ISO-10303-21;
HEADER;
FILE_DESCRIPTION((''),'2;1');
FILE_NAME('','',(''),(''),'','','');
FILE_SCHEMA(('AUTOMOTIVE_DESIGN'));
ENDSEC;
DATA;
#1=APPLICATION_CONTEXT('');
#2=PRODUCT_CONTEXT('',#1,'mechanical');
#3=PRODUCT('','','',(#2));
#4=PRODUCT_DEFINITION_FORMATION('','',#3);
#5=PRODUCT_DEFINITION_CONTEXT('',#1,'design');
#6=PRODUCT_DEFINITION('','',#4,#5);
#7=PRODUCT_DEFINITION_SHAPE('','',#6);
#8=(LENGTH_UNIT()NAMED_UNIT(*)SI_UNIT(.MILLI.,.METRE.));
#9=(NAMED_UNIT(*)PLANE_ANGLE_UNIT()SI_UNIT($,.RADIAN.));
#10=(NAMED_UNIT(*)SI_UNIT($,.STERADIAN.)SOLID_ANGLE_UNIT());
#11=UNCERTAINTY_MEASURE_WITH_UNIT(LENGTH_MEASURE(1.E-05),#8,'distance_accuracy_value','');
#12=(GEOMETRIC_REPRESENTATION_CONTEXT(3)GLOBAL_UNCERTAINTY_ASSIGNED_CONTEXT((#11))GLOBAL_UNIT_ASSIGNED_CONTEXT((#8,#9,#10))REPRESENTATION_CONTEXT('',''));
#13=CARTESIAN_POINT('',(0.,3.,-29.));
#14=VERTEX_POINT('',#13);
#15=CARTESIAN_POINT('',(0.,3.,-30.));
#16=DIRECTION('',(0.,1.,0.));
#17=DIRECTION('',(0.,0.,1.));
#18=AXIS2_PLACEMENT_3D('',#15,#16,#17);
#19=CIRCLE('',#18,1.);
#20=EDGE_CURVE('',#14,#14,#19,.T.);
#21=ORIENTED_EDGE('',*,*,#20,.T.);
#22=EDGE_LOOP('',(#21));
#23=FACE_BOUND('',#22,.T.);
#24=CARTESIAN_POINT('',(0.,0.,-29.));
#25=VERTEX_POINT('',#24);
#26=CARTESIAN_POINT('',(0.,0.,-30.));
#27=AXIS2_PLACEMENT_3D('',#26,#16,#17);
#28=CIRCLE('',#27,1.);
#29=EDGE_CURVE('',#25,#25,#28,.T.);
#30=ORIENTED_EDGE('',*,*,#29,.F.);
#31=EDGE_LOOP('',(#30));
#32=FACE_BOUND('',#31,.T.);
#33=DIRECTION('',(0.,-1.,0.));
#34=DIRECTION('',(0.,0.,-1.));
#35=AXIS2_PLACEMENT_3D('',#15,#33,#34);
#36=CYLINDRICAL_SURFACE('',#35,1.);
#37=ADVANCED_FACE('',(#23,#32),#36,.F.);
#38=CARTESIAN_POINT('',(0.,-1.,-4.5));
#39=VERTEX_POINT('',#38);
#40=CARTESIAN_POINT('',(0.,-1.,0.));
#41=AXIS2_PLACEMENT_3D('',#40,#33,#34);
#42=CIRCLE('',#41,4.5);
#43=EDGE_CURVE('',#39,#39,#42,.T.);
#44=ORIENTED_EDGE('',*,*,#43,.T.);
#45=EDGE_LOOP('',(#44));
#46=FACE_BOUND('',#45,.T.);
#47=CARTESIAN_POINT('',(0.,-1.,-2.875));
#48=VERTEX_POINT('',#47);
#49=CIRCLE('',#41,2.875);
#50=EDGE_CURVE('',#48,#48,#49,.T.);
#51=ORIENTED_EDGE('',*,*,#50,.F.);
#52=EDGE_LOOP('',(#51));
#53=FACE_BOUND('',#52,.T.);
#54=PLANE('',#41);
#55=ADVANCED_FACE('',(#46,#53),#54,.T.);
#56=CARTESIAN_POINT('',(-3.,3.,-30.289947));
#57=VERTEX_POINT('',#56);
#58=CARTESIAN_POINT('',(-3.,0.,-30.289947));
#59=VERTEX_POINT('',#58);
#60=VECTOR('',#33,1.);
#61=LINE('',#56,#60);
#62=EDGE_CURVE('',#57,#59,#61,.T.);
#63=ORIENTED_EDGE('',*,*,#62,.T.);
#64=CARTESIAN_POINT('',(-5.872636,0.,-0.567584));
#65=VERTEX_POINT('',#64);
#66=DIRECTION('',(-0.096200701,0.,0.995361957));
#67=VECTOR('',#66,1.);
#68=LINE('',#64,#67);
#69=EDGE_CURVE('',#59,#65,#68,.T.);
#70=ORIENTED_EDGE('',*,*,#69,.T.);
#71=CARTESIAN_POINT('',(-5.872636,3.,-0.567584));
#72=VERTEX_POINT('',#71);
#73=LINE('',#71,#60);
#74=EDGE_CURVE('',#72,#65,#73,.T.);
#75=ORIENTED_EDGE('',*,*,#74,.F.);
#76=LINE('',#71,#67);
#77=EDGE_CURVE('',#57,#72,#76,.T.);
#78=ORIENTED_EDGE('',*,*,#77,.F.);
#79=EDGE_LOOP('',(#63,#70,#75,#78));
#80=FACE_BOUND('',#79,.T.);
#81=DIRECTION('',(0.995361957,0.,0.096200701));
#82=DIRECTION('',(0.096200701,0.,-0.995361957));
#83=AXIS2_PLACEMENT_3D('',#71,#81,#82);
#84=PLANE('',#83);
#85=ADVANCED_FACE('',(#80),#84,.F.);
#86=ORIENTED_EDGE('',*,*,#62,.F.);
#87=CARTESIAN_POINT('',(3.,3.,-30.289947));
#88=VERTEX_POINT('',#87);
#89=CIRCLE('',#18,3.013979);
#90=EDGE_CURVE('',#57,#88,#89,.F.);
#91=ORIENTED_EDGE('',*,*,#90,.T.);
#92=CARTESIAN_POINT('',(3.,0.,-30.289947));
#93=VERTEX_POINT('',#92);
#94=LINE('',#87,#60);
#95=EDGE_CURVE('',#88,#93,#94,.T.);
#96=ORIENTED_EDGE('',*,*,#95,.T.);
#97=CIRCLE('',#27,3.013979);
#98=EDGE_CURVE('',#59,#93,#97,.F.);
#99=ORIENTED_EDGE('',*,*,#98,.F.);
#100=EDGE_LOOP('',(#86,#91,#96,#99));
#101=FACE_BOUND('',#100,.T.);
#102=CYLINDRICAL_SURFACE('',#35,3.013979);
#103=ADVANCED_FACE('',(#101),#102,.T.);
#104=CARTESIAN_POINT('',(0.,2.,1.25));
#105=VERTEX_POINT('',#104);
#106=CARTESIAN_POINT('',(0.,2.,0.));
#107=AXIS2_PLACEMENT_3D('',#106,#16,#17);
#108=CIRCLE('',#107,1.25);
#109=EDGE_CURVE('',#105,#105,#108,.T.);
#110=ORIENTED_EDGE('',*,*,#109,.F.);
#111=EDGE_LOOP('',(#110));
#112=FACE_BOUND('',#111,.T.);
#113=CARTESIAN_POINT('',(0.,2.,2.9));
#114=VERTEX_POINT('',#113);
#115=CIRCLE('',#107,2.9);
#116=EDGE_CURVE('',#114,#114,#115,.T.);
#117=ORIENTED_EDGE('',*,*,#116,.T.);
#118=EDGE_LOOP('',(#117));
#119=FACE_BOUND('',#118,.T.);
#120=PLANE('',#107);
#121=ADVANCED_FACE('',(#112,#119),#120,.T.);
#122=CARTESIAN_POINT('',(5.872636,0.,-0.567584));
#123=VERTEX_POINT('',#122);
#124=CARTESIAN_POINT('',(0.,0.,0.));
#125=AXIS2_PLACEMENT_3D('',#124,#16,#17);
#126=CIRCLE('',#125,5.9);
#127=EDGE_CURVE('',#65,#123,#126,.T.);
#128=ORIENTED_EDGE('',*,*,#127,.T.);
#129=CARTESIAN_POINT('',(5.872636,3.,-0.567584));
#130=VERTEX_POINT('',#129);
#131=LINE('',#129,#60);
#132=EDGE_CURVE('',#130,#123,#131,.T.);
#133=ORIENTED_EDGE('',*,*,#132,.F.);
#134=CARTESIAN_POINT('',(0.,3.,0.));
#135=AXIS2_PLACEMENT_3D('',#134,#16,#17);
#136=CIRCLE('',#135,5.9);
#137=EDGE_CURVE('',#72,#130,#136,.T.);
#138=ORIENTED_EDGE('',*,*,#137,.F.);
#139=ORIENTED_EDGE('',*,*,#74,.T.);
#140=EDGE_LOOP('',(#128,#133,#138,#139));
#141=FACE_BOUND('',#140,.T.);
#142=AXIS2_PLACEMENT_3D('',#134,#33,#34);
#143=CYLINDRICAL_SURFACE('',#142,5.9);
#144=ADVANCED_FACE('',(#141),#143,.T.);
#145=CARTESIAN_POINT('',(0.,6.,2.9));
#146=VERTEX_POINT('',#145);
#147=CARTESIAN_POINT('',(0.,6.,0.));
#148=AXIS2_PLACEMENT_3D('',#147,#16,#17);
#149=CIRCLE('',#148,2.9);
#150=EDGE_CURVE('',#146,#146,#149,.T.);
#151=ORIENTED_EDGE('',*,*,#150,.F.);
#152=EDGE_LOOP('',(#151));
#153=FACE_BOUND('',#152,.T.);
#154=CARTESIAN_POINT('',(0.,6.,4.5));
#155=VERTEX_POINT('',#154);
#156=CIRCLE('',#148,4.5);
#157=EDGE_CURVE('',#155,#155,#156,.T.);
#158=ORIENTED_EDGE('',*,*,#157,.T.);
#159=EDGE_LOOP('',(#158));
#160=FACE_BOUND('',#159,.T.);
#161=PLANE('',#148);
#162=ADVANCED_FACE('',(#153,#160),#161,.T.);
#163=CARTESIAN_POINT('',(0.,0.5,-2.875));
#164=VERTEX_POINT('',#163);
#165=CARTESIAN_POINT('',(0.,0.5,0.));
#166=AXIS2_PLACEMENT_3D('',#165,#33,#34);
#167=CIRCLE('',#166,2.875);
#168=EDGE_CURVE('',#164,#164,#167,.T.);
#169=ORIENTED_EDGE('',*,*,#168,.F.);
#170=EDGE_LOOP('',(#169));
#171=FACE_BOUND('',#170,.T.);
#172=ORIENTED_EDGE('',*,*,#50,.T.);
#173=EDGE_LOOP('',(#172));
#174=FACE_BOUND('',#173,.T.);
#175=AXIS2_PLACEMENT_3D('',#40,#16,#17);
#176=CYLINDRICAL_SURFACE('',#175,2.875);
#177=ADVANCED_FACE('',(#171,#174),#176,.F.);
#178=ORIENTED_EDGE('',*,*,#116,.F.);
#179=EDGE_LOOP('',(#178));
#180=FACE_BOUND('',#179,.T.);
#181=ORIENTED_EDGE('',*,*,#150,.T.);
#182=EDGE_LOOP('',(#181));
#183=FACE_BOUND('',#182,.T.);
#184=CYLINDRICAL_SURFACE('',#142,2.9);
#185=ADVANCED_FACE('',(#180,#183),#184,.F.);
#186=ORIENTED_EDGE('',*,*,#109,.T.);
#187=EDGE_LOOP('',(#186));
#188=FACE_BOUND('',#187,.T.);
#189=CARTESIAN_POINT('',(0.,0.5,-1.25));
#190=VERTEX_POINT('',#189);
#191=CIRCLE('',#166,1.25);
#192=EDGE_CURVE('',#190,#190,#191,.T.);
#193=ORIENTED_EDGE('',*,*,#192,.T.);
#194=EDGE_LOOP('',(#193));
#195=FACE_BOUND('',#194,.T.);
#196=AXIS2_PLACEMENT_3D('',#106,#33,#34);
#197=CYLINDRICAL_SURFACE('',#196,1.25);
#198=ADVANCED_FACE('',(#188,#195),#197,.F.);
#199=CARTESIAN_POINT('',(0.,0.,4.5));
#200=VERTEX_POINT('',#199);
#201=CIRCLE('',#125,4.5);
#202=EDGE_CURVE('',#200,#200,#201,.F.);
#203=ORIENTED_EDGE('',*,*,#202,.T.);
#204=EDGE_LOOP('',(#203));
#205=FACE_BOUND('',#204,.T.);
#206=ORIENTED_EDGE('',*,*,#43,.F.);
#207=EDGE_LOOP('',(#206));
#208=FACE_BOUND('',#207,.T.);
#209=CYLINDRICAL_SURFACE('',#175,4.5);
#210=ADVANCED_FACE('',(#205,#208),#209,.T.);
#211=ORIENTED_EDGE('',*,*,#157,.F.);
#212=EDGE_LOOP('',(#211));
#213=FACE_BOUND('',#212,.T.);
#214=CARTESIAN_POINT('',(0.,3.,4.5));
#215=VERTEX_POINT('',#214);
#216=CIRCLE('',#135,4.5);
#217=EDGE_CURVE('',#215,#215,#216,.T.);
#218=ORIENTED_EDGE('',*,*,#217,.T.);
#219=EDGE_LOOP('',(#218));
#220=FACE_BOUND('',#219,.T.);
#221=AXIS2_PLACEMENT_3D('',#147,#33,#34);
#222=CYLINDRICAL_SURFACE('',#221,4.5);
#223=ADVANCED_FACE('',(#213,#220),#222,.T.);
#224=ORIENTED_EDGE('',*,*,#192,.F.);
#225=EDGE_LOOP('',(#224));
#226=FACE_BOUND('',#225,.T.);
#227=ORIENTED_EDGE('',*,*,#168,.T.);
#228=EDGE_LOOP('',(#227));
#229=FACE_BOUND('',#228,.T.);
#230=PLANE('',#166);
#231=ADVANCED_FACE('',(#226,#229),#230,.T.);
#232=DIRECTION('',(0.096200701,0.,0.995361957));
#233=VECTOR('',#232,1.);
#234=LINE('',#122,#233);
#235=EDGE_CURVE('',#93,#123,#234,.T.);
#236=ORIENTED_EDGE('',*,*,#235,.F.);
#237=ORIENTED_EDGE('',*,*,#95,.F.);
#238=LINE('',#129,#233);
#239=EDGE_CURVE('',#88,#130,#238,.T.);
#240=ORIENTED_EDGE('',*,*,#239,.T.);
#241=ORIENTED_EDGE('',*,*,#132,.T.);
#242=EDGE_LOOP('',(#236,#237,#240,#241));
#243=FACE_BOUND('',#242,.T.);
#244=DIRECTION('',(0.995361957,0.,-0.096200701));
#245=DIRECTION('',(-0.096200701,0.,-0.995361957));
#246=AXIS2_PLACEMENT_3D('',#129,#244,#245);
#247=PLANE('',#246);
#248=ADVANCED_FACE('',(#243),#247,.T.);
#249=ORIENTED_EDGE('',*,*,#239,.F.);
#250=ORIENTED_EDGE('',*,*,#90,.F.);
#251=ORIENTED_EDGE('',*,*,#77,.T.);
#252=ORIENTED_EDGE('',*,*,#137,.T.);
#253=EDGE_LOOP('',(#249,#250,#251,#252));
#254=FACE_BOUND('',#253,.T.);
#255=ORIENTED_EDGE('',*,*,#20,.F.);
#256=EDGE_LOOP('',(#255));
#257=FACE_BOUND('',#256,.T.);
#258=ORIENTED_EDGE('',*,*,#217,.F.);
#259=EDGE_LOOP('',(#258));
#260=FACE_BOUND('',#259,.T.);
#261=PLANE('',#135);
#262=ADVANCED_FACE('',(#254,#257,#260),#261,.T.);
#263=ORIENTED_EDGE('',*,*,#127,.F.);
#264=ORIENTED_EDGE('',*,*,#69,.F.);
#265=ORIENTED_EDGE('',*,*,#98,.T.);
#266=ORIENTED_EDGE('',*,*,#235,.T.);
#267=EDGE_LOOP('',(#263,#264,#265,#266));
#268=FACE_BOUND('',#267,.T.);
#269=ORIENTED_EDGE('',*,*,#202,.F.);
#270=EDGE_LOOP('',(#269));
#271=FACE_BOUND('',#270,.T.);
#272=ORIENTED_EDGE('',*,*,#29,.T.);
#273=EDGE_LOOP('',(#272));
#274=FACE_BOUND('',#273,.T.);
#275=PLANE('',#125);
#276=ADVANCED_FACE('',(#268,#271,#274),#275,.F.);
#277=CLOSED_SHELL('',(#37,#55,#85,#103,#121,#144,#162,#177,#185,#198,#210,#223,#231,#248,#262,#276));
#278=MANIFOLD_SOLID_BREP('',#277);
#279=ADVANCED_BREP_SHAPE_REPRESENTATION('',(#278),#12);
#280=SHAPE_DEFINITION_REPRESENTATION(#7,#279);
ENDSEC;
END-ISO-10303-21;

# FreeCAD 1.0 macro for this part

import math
import FreeCAD as App
import Part
import Sketcher

doc = App.newDocument("Part")
body = doc.addObject("PartDesign::Body", "Body")

# Sketch on XZ plane
sketch1 = body.newObject("Sketcher::SketchObject", "Sketch")
sketch1.AttachmentSupport = (doc.getObject("XZ_Plane"), [""])
sketch1.MapMode = "FlatFace"
sketch1.addGeometry([
    Part.LineSegment(App.Vector(-3, -30.3, 0), App.Vector(-5.9, -0.6, 0)),  # 0
    Part.ArcOfCircle(Part.Circle(App.Vector(0, 0, 0), App.Vector(0, 0, 1), 5.9), math.radians(-6), math.radians(186)),  # 1
    Part.LineSegment(App.Vector(5.9, -0.6, 0), App.Vector(3, -30.3, 0)),  # 2
    Part.ArcOfCircle(Part.Circle(App.Vector(0, -30, 0), App.Vector(0, 0, 1), 3), math.radians(-174), math.radians(-6)),  # 3
    Part.Circle(App.Vector(0, 0, 0), App.Vector(0, 0, 1), 2.9),  # 4
    Part.Circle(App.Vector(0, -30, 0), App.Vector(0, 0, 1), 1),  # 5
], False)
sketch1.addConstraint([
    Sketcher.Constraint("Tangent", 0, 2, 1, 2),
    Sketcher.Constraint("Tangent", 1, 1, 2, 1),
    Sketcher.Constraint("Tangent", 2, 2, 3, 2),
    Sketcher.Constraint("Tangent", 3, 1, 0, 1),
    Sketcher.Constraint("Coincident", 1, 3, -1, 1),
    Sketcher.Constraint("Coincident", 4, 3, -1, 1),
    Sketcher.Constraint("Coincident", 5, 3, 3, 3),
    Sketcher.Constraint("PointOnObject", 3, 3, -2),
    Sketcher.Constraint("Diameter", 5, 2.0),
    Sketcher.Constraint("Diameter", 4, 5.8),
    Sketcher.Constraint("Radius", 1, 5.9),
    Sketcher.Constraint("DistanceY", 3, 3, -1, 1, 30.0),
    Sketcher.Constraint("DistanceX", -1, 1, 2, 2, 3.0),
])
pad1 = body.newObject("PartDesign::Pad", "Pad")
pad1.Profile = sketch1
pad1.Length = 3
pad1.Reversed = True

# Sketch on XZ plane
sketch2 = body.newObject("Sketcher::SketchObject", "Sketch001")
sketch2.AttachmentSupport = (doc.getObject("XZ_Plane"), [""])
sketch2.MapMode = "FlatFace"
sketch2.addGeometry([
    Part.Circle(App.Vector(0, 0, 0), App.Vector(0, 0, 1), 2.9),
    Part.Circle(App.Vector(0, 0, 0), App.Vector(0, 0, 1), 1.2),
], False)
sketch2.addConstraint([
    Sketcher.Constraint("Coincident", 0, 3, -1, 1),
    Sketcher.Constraint("Coincident", 1, 3, -1, 1),
    Sketcher.Constraint("Diameter", 0, 5.8),
    Sketcher.Constraint("Diameter", 1, 2.5),
])
pad2 = body.newObject("PartDesign::Pad", "Pad001")
pad2.Profile = sketch2
pad2.Length = 2
pad2.Reversed = True

# Sketch on XZ plane
sketch3 = body.newObject("Sketcher::SketchObject", "Sketch002")
sketch3.AttachmentSupport = (doc.getObject("XZ_Plane"), [""])
sketch3.MapMode = "FlatFace"
sketch3.AttachmentOffset = App.Placement(App.Vector(0, 0, -3), App.Rotation())
sketch3.addGeometry([
    Part.Circle(App.Vector(0, 0, 0), App.Vector(0, 0, 1), 4.5),
    Part.Circle(App.Vector(0, 0, 0), App.Vector(0, 0, 1), 2.9),
], False)
sketch3.addConstraint([
    Sketcher.Constraint("Coincident", 0, 3, -1, 1),
    Sketcher.Constraint("Coincident", 1, 3, -1, 1),
    Sketcher.Constraint("Diameter", 0, 9.0),
    Sketcher.Constraint("Diameter", 1, 5.8),
])
pad3 = body.newObject("PartDesign::Pad", "Pad002")
pad3.Profile = sketch3
pad3.Length = 3
pad3.Reversed = True

# Sketch on XZ plane
sketch4 = body.newObject("Sketcher::SketchObject", "Sketch003")
sketch4.AttachmentSupport = (doc.getObject("XZ_Plane"), [""])
sketch4.MapMode = "FlatFace"
sketch4.AttachmentOffset = App.Placement(App.Vector(0, 0, 1), App.Rotation())
sketch4.addGeometry([
    Part.Circle(App.Vector(0, 0, 0), App.Vector(0, 0, 1), 4.5),
    Part.Circle(App.Vector(0, 0, 0), App.Vector(0, 0, 1), 2.9),
], False)
sketch4.addConstraint([
    Sketcher.Constraint("Coincident", 0, 3, -1, 1),
    Sketcher.Constraint("Coincident", 1, 3, -1, 1),
    Sketcher.Constraint("Diameter", 0, 9.0),
    Sketcher.Constraint("Diameter", 1, 5.75),
])
pad4 = body.newObject("PartDesign::Pad", "Pad003")
pad4.Profile = sketch4
pad4.Length = 1
pad4.Reversed = True

# Sketch on XZ plane
sketch5 = body.newObject("Sketcher::SketchObject", "Sketch004")
sketch5.AttachmentSupport = (doc.getObject("XZ_Plane"), [""])
sketch5.MapMode = "FlatFace"
sketch5.addGeometry(Part.Circle(App.Vector(0, 0, 0), App.Vector(0, 0, 1), 2.9), False)
sketch5.addConstraint([
    Sketcher.Constraint("Coincident", 0, 3, -1, 1),
    Sketcher.Constraint("Diameter", 0, 5.75),
])
pocket1 = body.newObject("PartDesign::Pocket", "Pocket")
pocket1.Profile = sketch5
pocket1.Length = 0.5

doc.recompute()
